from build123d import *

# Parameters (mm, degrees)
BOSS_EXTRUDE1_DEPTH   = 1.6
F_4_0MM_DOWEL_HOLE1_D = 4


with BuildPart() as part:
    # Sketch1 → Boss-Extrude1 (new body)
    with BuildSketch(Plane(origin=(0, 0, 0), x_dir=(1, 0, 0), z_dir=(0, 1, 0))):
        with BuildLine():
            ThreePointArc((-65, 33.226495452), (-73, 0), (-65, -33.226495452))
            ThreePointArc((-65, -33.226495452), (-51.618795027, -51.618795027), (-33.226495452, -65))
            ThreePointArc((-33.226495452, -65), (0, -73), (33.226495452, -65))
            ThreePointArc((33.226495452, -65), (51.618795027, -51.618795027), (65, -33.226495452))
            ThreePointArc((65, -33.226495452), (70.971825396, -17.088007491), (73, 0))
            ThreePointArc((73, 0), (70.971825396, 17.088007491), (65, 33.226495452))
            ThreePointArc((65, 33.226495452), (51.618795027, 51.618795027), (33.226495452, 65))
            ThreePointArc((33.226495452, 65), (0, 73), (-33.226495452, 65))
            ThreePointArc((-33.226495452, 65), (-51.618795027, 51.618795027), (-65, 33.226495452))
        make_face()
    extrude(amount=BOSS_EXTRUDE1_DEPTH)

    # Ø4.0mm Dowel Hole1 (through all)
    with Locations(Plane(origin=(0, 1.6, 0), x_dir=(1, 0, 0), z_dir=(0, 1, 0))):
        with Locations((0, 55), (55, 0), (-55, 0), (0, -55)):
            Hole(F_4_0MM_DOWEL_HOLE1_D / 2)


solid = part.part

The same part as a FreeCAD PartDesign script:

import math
import FreeCAD as App
import Part
import Sketcher
from FreeCAD import Vector
Q = App.Units.Quantity

doc = App.newDocument("Part")
body = doc.addObject("PartDesign::Body", "Body")

sketch1 = doc.addObject("Sketcher::SketchObject", "Sketch")
body.addObject(sketch1)
sketch1.AttachmentSupport = (doc.XZ_Plane, [""])
sketch1.MapMode = "FlatFace"
sketch1.addGeometry([
    Part.ArcOfCircle(Part.Circle(Vector(0, 0, 0), Vector(0, 0, 1), 73), math.radians(152.924933), math.radians(207.075067)),
    Part.ArcOfCircle(Part.Circle(Vector(0, 0, 0), Vector(0, 0, 1), 73), math.radians(117.075067), math.radians(152.924933)),
    Part.ArcOfCircle(Part.Circle(Vector(0, 0, 0), Vector(0, 0, 1), 73), math.radians(62.924933), math.radians(117.075067)),
    Part.ArcOfCircle(Part.Circle(Vector(0, 0, 0), Vector(0, 0, 1), 73), math.radians(27.075067), math.radians(62.924933)),
    Part.ArcOfCircle(Part.Circle(Vector(0, 0, 0), Vector(0, 0, 1), 73), math.radians(0), math.radians(27.075067)),
    Part.ArcOfCircle(Part.Circle(Vector(0, 0, 0), Vector(0, 0, 1), 73), math.radians(-27.075067), math.radians(0)),
    Part.ArcOfCircle(Part.Circle(Vector(0, 0, 0), Vector(0, 0, 1), 73), math.radians(-62.924933), math.radians(-27.075067)),
    Part.ArcOfCircle(Part.Circle(Vector(0, 0, 0), Vector(0, 0, 1), 73), math.radians(-117.075067), math.radians(-62.924933)),
    Part.ArcOfCircle(Part.Circle(Vector(0, 0, 0), Vector(0, 0, 1), 73), math.radians(-152.924933), math.radians(-117.075067)),
], False)
sketch1.addConstraint([
    Sketcher.Constraint("Tangent", 0, 1, 1, 2),
    Sketcher.Constraint("Tangent", 1, 1, 2, 2),
    Sketcher.Constraint("Tangent", 2, 1, 3, 2),
    Sketcher.Constraint("Tangent", 3, 1, 4, 2),
    Sketcher.Constraint("Tangent", 4, 1, 5, 2),
    Sketcher.Constraint("Tangent", 5, 1, 6, 2),
    Sketcher.Constraint("Tangent", 6, 1, 7, 2),
    Sketcher.Constraint("Tangent", 7, 1, 8, 2),
    Sketcher.Constraint("Tangent", 8, 1, 0, 2),
    Sketcher.Constraint("Coincident", 0, 3, -1, 1),
    Sketcher.Constraint("Coincident", 2, 3, -1, 1),
    Sketcher.Constraint("Coincident", 4, 3, -1, 1),
    Sketcher.Constraint("Coincident", 6, 3, -1, 1),
    Sketcher.Constraint("PointOnObject", 4, 1, -1),
    Sketcher.Constraint("Horizontal", 1, 1, 2, 1),
    Sketcher.Constraint("Horizontal", 0, 1, 3, 1),
    Sketcher.Constraint("Horizontal", 6, 1, 7, 1),
    Sketcher.Constraint("Horizontal", 5, 1, 8, 1),
    Sketcher.Constraint("Vertical", 3, 1, 5, 1),
    Sketcher.Constraint("Vertical", 2, 1, 6, 1),
    Sketcher.Constraint("Radius", 0, Q("73 mm")),
    Sketcher.Constraint("DistanceX", 0, 1, -1, 1, Q("65 mm")),
    Sketcher.Constraint("DistanceY", -1, 1, 1, 1, Q("65 mm")),
])
pad1 = doc.addObject("PartDesign::Pad", "Pad")
body.addObject(pad1)
pad1.Profile = sketch1
pad1.Length = 1.6
pad1.Reversed = True

sketch2 = doc.addObject("Sketcher::SketchObject", "Sketch001")
body.addObject(sketch2)
sketch2.AttachmentSupport = (doc.XZ_Plane, [""])
sketch2.MapMode = "FlatFace"
sketch2.AttachmentOffset = App.Placement(Vector(0, 0, -1.6), App.Rotation())
sketch2.addGeometry([
    Part.Circle(Vector(0, -55, 0), Vector(0, 0, 1), 2),
    Part.Circle(Vector(55, 0, 0), Vector(0, 0, 1), 2),
    Part.Circle(Vector(-55, 0, 0), Vector(0, 0, 1), 2),
    Part.Circle(Vector(0, 55, 0), Vector(0, 0, 1), 2),
], False)
sketch2.addConstraint([
    Sketcher.Constraint("Equal", 0, 1),
    Sketcher.Constraint("Equal", 1, 2),
    Sketcher.Constraint("Equal", 2, 3),
    Sketcher.Constraint("Symmetric", 1, 3, 2, 3, -1, 1),
    Sketcher.Constraint("Symmetric", 0, 3, 3, 3, -1, 1),
    Sketcher.Constraint("PointOnObject", 0, 3, -2),
    Sketcher.Constraint("PointOnObject", 1, 3, -1),
    Sketcher.Constraint("Diameter", 0, Q("4 mm")),
    Sketcher.Constraint("DistanceY", 0, 3, -1, 1, Q("55 mm")),
    Sketcher.Constraint("DistanceX", -1, 1, 1, 3, Q("55 mm")),
])
doc.recompute()
hole = doc.addObject("PartDesign::Hole", "Hole")
body.addObject(hole)
hole.Profile = sketch2
hole.ThreadType = "None"
hole.Diameter = 4
hole.DepthType = "ThroughAll"
hole.Reversed = True

doc.recompute()
